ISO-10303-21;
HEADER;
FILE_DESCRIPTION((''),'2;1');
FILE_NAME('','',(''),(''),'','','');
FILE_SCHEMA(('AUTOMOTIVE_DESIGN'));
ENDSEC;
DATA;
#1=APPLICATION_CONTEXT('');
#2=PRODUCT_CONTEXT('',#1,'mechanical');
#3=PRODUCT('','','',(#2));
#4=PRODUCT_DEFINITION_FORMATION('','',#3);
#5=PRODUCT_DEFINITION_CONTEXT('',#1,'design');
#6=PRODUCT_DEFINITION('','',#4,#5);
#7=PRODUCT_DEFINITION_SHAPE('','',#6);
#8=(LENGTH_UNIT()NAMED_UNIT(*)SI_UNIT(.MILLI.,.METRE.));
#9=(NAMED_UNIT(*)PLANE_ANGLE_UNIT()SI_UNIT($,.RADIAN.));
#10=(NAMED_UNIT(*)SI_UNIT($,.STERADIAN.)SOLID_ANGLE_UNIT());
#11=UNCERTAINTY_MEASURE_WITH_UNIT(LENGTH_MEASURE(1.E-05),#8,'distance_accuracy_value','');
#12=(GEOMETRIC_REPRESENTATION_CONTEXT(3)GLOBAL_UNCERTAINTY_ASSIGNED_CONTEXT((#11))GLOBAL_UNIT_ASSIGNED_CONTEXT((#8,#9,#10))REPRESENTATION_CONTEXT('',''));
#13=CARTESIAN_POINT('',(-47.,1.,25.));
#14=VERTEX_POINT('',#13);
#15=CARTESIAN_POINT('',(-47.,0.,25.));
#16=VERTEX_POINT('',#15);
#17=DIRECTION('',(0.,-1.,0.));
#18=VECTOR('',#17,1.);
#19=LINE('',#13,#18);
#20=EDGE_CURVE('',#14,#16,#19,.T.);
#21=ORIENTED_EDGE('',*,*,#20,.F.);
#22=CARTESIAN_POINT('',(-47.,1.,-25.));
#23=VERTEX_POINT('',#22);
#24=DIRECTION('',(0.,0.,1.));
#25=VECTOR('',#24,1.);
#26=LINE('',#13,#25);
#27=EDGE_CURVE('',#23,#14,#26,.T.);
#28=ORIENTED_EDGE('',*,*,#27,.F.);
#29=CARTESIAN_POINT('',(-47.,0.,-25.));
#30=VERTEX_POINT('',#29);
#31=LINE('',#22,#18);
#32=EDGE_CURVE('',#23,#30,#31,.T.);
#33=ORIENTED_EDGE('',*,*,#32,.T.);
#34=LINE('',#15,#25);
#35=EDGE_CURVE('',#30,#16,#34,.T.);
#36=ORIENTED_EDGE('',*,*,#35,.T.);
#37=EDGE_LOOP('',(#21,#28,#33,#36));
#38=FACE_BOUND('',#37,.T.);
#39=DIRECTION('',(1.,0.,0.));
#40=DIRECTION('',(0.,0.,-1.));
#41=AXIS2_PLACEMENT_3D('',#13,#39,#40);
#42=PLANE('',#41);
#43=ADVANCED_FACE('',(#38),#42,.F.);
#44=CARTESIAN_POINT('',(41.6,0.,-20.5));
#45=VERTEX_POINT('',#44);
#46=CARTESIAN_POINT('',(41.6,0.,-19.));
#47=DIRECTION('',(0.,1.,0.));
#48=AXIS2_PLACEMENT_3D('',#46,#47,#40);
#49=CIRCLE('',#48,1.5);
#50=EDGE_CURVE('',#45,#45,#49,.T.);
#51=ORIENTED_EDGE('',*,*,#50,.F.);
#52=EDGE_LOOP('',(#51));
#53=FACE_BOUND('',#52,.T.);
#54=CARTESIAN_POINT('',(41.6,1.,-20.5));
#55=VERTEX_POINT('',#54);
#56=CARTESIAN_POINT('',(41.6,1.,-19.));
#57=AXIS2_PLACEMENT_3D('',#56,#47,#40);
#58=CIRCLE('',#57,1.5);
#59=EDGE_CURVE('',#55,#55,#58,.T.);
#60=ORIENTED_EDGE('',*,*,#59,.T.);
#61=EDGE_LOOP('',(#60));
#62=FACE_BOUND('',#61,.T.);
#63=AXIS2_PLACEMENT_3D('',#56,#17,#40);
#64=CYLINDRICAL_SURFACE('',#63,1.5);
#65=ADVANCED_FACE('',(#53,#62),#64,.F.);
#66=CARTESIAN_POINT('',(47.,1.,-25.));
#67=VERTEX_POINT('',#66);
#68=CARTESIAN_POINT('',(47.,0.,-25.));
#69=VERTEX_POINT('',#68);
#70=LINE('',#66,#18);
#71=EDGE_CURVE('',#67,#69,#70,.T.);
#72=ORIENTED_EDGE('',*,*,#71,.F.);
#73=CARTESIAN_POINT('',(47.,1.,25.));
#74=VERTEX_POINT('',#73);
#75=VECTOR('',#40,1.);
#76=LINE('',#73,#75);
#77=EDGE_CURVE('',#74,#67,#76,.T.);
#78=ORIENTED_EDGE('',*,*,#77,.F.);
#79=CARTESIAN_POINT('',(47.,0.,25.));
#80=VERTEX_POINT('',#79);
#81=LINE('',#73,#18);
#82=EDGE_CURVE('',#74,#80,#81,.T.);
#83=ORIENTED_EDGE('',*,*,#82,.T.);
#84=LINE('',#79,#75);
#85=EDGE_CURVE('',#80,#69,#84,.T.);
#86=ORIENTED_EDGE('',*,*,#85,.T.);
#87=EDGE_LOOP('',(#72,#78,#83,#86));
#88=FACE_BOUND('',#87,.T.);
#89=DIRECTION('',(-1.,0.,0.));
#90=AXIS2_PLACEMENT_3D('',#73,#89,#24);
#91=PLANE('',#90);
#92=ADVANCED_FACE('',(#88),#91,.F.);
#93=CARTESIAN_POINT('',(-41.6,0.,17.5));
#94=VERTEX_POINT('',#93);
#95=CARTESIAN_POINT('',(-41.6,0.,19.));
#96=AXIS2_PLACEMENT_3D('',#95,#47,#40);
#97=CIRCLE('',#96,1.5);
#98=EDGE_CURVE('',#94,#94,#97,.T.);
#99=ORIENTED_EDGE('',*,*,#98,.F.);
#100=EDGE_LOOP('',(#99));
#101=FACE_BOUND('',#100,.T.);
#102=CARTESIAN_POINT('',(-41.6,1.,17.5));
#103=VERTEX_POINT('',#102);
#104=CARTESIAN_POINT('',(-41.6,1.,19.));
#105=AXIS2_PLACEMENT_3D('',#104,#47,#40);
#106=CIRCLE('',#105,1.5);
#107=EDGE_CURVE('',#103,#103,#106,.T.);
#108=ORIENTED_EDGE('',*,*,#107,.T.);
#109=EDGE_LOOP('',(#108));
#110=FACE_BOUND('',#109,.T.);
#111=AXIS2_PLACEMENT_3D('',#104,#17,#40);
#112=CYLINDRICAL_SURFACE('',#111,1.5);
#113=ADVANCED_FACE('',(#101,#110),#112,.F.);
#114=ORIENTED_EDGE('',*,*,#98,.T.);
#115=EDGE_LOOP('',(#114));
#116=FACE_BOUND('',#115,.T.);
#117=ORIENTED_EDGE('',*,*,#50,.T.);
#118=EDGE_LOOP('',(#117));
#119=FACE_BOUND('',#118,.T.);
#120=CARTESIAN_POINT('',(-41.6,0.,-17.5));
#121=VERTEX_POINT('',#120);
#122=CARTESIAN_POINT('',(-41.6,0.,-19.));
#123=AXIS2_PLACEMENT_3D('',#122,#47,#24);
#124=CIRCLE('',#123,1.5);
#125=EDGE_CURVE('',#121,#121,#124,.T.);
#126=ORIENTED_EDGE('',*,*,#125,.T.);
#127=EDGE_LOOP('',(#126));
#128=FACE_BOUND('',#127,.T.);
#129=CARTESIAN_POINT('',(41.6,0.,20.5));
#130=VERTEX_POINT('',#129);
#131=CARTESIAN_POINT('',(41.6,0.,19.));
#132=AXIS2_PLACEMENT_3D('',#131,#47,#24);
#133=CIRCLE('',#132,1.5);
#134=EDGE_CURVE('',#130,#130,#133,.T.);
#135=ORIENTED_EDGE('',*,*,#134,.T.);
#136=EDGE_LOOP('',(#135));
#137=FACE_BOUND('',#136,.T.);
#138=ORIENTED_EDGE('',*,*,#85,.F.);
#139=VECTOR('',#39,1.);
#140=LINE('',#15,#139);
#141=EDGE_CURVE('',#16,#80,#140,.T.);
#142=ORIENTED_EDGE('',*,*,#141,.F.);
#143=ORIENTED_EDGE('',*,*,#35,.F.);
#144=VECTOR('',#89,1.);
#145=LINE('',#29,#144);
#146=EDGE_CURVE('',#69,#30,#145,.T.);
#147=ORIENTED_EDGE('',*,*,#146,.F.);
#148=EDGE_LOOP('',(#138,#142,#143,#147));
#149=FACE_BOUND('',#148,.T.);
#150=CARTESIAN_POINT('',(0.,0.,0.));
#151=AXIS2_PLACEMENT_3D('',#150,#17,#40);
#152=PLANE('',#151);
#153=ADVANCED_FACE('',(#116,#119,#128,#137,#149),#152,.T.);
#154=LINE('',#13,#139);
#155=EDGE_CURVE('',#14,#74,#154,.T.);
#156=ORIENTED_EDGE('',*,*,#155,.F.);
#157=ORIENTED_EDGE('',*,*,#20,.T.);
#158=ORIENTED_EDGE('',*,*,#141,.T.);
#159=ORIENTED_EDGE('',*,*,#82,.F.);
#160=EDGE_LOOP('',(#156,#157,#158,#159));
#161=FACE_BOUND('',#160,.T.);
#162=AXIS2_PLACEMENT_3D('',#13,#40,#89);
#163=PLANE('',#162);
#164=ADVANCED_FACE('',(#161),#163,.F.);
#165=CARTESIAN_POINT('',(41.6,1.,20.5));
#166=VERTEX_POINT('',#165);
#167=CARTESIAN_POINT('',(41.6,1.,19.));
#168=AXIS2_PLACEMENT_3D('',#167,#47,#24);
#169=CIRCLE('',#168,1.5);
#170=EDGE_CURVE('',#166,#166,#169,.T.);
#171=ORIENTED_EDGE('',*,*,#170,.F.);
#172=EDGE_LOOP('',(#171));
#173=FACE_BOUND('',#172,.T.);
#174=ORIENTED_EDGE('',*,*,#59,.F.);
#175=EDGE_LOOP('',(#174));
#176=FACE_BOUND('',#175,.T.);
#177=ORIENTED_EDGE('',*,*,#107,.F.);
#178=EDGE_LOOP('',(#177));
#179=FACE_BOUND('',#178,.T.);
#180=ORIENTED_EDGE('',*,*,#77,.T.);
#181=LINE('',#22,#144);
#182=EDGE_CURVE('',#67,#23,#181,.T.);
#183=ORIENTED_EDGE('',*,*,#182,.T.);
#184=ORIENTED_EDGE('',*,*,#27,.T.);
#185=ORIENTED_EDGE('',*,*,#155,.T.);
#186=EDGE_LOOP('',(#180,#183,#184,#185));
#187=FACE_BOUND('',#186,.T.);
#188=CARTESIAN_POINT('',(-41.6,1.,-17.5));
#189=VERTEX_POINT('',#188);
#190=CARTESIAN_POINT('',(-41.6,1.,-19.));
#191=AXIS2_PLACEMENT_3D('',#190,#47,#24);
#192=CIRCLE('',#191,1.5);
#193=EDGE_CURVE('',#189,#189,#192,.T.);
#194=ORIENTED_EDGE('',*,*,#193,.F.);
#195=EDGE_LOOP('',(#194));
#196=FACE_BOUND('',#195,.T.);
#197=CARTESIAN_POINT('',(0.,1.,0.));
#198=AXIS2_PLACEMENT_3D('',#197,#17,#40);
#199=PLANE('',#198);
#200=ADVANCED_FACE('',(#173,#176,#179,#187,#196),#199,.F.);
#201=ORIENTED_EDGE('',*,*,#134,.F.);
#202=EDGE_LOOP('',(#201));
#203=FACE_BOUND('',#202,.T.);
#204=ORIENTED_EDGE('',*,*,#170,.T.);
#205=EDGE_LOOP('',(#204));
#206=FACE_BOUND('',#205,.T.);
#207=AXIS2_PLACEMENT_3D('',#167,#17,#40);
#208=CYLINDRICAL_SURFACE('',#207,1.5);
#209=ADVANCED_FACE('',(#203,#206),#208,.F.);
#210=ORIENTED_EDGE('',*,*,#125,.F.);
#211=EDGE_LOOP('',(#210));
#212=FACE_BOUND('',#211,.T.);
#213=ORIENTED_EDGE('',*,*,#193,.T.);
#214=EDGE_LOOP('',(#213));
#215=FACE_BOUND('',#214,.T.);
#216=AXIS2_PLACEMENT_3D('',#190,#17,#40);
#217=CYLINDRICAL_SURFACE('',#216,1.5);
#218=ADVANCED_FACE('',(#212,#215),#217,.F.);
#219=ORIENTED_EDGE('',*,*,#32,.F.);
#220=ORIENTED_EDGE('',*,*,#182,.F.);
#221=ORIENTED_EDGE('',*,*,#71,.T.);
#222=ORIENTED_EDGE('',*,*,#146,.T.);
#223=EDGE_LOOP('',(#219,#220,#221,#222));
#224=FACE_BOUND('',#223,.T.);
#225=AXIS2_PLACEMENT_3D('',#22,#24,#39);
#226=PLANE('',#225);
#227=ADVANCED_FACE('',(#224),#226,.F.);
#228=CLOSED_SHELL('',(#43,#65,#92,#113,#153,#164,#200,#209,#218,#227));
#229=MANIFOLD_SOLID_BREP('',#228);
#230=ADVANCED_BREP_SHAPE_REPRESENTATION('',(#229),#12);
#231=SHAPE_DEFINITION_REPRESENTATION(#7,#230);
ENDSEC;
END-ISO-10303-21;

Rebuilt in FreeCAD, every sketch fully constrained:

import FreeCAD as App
import Part
import Sketcher

V = App.Vector
Q = App.Units.Quantity


def add_polygon(sketch, points):
    """Adds a closed chain of lines whose ends are joined by coincident constraints."""
    first, n = sketch.GeometryCount, len(points)
    for a, b in zip(points, points[1:] + points[:1]):
        sketch.addGeometry(Part.LineSegment(App.Vector(*a, 0), App.Vector(*b, 0)), False)
    for i in range(n):
        sketch.addConstraint(Sketcher.Constraint("Coincident", first + i, 2, first + (i + 1) % n, 1))

doc = App.newDocument("Part")
params = doc.addObject("Spreadsheet::Sheet", "Params")
for row, (alias, value) in enumerate([
    ("sketch1_diameter", "3 mm"),
    ("sketch1_width", "94 mm"),
    ("sketch1_height", "50 mm"),
    ("pad1_length", "1 mm"),
], start=1):
    params.set(f"A{row}", alias)
    params.set(f"B{row}", "=" + value)
    params.setAlias(f"B{row}", alias)

body = doc.addObject("PartDesign::Body", "Body")

# Sketch on XZ plane
sketch1 = body.newObject("Sketcher::SketchObject", "Sketch")
sketch1.AttachmentSupport = (doc.getObject("XZ_Plane"), [""])
sketch1.MapMode = "FlatFace"
add_polygon(sketch1, [(-47, -25), (-47, 25), (47, 25), (47, -25)])  # lines 0-3
sketch1.addGeometry(Part.Circle(V(-41.6, 19, 0), V(0, 0, 1), 1.5), False)  # 4
sketch1.addGeometry(Part.Circle(V(41.6, 19, 0), V(0, 0, 1), 1.5), False)  # 5
sketch1.addGeometry(Part.Circle(V(-41.6, -19, 0), V(0, 0, 1), 1.5), False)  # 6
sketch1.addGeometry(Part.Circle(V(41.6, -19, 0), V(0, 0, 1), 1.5), False)  # 7
sketch1.addConstraint([
    Sketcher.Constraint("Vertical", 0),
    Sketcher.Constraint("Horizontal", 1),
    Sketcher.Constraint("Vertical", 2),
    Sketcher.Constraint("Horizontal", 3),
    Sketcher.Constraint("Equal", 4, 5),
    Sketcher.Constraint("Equal", 5, 6),
    Sketcher.Constraint("Equal", 6, 7),
    Sketcher.Constraint("Symmetric", 5, 3, 6, 3, -1, 1),
    Sketcher.Constraint("Symmetric", 4, 3, 7, 3, -1, 1),
    Sketcher.Constraint("Symmetric", 0, 2, 2, 2, -1, 1),
    Sketcher.Constraint("Symmetric", 4, 3, 5, 3, -2),
    Sketcher.Constraint("Diameter", 4, Q("3 mm")),
    Sketcher.Constraint("DistanceX", 1, 1, 1, 2, Q("94 mm")),
    Sketcher.Constraint("DistanceY", 0, 1, 0, 2, Q("50 mm")),
    Sketcher.Constraint("DistanceY", -1, 1, 4, 3, Q("19 mm")),
    Sketcher.Constraint("DistanceX", 4, 3, -1, 1, Q("41.6 mm")),
])
sketch1.setExpression("Constraints[15]", "Params.sketch1_diameter")
sketch1.setExpression("Constraints[16]", "Params.sketch1_width")
sketch1.setExpression("Constraints[17]", "Params.sketch1_height")
pad1 = body.newObject("PartDesign::Pad", "Pad")
pad1.Profile = sketch1
pad1.setExpression("Length", "Params.pad1_length")
pad1.Reversed = True

doc.recompute()
